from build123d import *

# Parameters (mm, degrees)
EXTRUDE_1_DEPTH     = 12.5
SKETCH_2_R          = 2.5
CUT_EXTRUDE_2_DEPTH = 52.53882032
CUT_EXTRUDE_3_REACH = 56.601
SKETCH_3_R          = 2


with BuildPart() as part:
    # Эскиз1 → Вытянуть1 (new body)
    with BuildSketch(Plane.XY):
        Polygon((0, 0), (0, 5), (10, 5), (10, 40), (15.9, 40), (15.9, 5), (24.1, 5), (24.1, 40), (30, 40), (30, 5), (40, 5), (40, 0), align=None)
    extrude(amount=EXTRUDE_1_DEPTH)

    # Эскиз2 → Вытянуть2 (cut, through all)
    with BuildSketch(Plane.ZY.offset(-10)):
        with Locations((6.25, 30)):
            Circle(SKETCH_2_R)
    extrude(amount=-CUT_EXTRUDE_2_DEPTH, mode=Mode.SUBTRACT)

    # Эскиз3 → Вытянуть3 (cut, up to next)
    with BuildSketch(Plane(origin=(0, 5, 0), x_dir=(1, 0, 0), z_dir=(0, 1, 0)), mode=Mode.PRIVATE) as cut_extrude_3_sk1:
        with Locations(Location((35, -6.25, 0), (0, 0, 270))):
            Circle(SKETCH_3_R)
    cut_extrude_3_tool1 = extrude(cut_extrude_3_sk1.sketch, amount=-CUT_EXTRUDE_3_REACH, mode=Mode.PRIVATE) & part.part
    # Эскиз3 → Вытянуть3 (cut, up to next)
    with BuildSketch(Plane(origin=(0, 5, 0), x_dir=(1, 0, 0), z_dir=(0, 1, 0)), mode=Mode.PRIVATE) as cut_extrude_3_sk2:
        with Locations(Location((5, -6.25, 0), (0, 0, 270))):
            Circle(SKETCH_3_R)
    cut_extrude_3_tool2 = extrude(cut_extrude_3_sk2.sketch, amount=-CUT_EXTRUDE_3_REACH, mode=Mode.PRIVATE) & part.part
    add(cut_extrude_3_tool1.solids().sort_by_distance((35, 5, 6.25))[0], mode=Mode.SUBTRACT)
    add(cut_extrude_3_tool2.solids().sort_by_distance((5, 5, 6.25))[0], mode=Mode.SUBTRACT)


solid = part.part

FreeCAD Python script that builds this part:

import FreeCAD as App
import Part
import Sketcher

V = App.Vector
Q = App.Units.Quantity


def add_polygon(sketch, points):
    """Adds a closed chain of lines whose ends are joined by coincident constraints."""
    first, n = sketch.GeometryCount, len(points)
    for a, b in zip(points, points[1:] + points[:1]):
        sketch.addGeometry(Part.LineSegment(App.Vector(*a, 0), App.Vector(*b, 0)), False)
    for i in range(n):
        sketch.addConstraint(Sketcher.Constraint("Coincident", first + i, 2, first + (i + 1) % n, 1))

doc = App.newDocument("Part")
body = doc.addObject("PartDesign::Body", "Body")

sketch1 = doc.addObject("Sketcher::SketchObject", "Sketch")
body.addObject(sketch1)
sketch1.AttachmentSupport = (doc.XY_Plane, [""])
sketch1.MapMode = "FlatFace"
add_polygon(sketch1, [(0, 5), (0, 0), (40, 0), (40, 5), (30, 5), (30, 40), (24, 40), (24, 5), (16, 5), (16, 40), (10, 40), (10, 5)])
sketch1.addConstraint([
    Sketcher.Constraint("Vertical", 0),
    Sketcher.Constraint("Horizontal", 1),
    Sketcher.Constraint("Vertical", 2),
    Sketcher.Constraint("Horizontal", 3),
    Sketcher.Constraint("Vertical", 4),
    Sketcher.Constraint("Horizontal", 5),
    Sketcher.Constraint("Vertical", 6),
    Sketcher.Constraint("Horizontal", 7),
    Sketcher.Constraint("Vertical", 8),
    Sketcher.Constraint("Horizontal", 9),
    Sketcher.Constraint("Vertical", 10),
    Sketcher.Constraint("Horizontal", 11),
    Sketcher.Constraint("Coincident", 0, 2, -1, 1),
    Sketcher.Constraint("Horizontal", 3, 2, 6, 2),
    Sketcher.Constraint("Horizontal", 5, 2, 8, 2),
    Sketcher.Constraint("Horizontal", 7, 2, 10, 2),
    Sketcher.Constraint("Equal", 5, 9),
    Sketcher.Constraint("Equal", 3, 11),
    Sketcher.Constraint("DistanceX", 1, 1, 1, 2, Q("40 mm")),
    Sketcher.Constraint("DistanceX", 3, 2, 3, 1, Q("10 mm")),
    Sketcher.Constraint("DistanceY", 0, 2, 0, 1, Q("5 mm")),
    Sketcher.Constraint("DistanceY", 4, 1, 4, 2, Q("35 mm")),
    Sketcher.Constraint("DistanceX", 5, 2, 5, 1, Q("5.9 mm")),
])
pad1 = doc.addObject("PartDesign::Pad", "Pad")
body.addObject(pad1)
pad1.Profile = sketch1
pad1.Length = 12.5

sketch2 = doc.addObject("Sketcher::SketchObject", "Sketch001")
body.addObject(sketch2)
sketch2.AttachmentSupport = (doc.YZ_Plane, [""])
sketch2.MapMode = "FlatFace"
sketch2.AttachmentOffset = App.Placement(V(0, 0, 10), App.Rotation())
sketch2.addGeometry(Part.Circle(V(30, 6.2, 0), V(0, 0, 1), 2.5), False)
sketch2.addConstraint([
    Sketcher.Constraint("Diameter", 0, Q("5 mm")),
    Sketcher.Constraint("DistanceX", -1, 1, 0, 3, Q("30 mm")),
    Sketcher.Constraint("DistanceY", -1, 1, 0, 3, Q("6.25 mm")),
])
pocket1 = doc.addObject("PartDesign::Pocket", "Pocket")
body.addObject(pocket1)
pocket1.Profile = sketch2
pocket1.Type = "ThroughAll"
pocket1.Reversed = True

sketch3 = doc.addObject("Sketcher::SketchObject", "Sketch002")
body.addObject(sketch3)
sketch3.AttachmentSupport = (doc.XZ_Plane, [""])
sketch3.MapMode = "FlatFace"
sketch3.AttachmentOffset = App.Placement(V(0, 0, -5), App.Rotation())
sketch3.addGeometry(Part.Circle(V(35, 6.2, 0), V(0, 0, 1), 2), False)
sketch3.addConstraint([
    Sketcher.Constraint("Diameter", 0, Q("4 mm")),
    Sketcher.Constraint("DistanceX", -1, 1, 0, 3, Q("35 mm")),
    Sketcher.Constraint("DistanceY", -1, 1, 0, 3, Q("6.25 mm")),
])
pocket2 = doc.addObject("PartDesign::Pocket", "Pocket001")
body.addObject(pocket2)
pocket2.Profile = sketch3
pocket2.Type = "UpToFirst"
pocket2.Reversed = True

sketch4 = doc.addObject("Sketcher::SketchObject", "Sketch003")
body.addObject(sketch4)
sketch4.AttachmentSupport = (doc.XZ_Plane, [""])
sketch4.MapMode = "FlatFace"
sketch4.AttachmentOffset = App.Placement(V(0, 0, -5), App.Rotation())
sketch4.addGeometry(Part.Circle(V(5, 6.2, 0), V(0, 0, 1), 2), False)
sketch4.addConstraint([
    Sketcher.Constraint("Diameter", 0, Q("4 mm")),
    Sketcher.Constraint("DistanceX", -1, 1, 0, 3, Q("5 mm")),
    Sketcher.Constraint("DistanceY", -1, 1, 0, 3, Q("6.25 mm")),
])
pocket3 = doc.addObject("PartDesign::Pocket", "Pocket002")
body.addObject(pocket3)
pocket3.Profile = sketch4
pocket3.Type = "UpToFirst"
pocket3.Reversed = True

doc.recompute()
